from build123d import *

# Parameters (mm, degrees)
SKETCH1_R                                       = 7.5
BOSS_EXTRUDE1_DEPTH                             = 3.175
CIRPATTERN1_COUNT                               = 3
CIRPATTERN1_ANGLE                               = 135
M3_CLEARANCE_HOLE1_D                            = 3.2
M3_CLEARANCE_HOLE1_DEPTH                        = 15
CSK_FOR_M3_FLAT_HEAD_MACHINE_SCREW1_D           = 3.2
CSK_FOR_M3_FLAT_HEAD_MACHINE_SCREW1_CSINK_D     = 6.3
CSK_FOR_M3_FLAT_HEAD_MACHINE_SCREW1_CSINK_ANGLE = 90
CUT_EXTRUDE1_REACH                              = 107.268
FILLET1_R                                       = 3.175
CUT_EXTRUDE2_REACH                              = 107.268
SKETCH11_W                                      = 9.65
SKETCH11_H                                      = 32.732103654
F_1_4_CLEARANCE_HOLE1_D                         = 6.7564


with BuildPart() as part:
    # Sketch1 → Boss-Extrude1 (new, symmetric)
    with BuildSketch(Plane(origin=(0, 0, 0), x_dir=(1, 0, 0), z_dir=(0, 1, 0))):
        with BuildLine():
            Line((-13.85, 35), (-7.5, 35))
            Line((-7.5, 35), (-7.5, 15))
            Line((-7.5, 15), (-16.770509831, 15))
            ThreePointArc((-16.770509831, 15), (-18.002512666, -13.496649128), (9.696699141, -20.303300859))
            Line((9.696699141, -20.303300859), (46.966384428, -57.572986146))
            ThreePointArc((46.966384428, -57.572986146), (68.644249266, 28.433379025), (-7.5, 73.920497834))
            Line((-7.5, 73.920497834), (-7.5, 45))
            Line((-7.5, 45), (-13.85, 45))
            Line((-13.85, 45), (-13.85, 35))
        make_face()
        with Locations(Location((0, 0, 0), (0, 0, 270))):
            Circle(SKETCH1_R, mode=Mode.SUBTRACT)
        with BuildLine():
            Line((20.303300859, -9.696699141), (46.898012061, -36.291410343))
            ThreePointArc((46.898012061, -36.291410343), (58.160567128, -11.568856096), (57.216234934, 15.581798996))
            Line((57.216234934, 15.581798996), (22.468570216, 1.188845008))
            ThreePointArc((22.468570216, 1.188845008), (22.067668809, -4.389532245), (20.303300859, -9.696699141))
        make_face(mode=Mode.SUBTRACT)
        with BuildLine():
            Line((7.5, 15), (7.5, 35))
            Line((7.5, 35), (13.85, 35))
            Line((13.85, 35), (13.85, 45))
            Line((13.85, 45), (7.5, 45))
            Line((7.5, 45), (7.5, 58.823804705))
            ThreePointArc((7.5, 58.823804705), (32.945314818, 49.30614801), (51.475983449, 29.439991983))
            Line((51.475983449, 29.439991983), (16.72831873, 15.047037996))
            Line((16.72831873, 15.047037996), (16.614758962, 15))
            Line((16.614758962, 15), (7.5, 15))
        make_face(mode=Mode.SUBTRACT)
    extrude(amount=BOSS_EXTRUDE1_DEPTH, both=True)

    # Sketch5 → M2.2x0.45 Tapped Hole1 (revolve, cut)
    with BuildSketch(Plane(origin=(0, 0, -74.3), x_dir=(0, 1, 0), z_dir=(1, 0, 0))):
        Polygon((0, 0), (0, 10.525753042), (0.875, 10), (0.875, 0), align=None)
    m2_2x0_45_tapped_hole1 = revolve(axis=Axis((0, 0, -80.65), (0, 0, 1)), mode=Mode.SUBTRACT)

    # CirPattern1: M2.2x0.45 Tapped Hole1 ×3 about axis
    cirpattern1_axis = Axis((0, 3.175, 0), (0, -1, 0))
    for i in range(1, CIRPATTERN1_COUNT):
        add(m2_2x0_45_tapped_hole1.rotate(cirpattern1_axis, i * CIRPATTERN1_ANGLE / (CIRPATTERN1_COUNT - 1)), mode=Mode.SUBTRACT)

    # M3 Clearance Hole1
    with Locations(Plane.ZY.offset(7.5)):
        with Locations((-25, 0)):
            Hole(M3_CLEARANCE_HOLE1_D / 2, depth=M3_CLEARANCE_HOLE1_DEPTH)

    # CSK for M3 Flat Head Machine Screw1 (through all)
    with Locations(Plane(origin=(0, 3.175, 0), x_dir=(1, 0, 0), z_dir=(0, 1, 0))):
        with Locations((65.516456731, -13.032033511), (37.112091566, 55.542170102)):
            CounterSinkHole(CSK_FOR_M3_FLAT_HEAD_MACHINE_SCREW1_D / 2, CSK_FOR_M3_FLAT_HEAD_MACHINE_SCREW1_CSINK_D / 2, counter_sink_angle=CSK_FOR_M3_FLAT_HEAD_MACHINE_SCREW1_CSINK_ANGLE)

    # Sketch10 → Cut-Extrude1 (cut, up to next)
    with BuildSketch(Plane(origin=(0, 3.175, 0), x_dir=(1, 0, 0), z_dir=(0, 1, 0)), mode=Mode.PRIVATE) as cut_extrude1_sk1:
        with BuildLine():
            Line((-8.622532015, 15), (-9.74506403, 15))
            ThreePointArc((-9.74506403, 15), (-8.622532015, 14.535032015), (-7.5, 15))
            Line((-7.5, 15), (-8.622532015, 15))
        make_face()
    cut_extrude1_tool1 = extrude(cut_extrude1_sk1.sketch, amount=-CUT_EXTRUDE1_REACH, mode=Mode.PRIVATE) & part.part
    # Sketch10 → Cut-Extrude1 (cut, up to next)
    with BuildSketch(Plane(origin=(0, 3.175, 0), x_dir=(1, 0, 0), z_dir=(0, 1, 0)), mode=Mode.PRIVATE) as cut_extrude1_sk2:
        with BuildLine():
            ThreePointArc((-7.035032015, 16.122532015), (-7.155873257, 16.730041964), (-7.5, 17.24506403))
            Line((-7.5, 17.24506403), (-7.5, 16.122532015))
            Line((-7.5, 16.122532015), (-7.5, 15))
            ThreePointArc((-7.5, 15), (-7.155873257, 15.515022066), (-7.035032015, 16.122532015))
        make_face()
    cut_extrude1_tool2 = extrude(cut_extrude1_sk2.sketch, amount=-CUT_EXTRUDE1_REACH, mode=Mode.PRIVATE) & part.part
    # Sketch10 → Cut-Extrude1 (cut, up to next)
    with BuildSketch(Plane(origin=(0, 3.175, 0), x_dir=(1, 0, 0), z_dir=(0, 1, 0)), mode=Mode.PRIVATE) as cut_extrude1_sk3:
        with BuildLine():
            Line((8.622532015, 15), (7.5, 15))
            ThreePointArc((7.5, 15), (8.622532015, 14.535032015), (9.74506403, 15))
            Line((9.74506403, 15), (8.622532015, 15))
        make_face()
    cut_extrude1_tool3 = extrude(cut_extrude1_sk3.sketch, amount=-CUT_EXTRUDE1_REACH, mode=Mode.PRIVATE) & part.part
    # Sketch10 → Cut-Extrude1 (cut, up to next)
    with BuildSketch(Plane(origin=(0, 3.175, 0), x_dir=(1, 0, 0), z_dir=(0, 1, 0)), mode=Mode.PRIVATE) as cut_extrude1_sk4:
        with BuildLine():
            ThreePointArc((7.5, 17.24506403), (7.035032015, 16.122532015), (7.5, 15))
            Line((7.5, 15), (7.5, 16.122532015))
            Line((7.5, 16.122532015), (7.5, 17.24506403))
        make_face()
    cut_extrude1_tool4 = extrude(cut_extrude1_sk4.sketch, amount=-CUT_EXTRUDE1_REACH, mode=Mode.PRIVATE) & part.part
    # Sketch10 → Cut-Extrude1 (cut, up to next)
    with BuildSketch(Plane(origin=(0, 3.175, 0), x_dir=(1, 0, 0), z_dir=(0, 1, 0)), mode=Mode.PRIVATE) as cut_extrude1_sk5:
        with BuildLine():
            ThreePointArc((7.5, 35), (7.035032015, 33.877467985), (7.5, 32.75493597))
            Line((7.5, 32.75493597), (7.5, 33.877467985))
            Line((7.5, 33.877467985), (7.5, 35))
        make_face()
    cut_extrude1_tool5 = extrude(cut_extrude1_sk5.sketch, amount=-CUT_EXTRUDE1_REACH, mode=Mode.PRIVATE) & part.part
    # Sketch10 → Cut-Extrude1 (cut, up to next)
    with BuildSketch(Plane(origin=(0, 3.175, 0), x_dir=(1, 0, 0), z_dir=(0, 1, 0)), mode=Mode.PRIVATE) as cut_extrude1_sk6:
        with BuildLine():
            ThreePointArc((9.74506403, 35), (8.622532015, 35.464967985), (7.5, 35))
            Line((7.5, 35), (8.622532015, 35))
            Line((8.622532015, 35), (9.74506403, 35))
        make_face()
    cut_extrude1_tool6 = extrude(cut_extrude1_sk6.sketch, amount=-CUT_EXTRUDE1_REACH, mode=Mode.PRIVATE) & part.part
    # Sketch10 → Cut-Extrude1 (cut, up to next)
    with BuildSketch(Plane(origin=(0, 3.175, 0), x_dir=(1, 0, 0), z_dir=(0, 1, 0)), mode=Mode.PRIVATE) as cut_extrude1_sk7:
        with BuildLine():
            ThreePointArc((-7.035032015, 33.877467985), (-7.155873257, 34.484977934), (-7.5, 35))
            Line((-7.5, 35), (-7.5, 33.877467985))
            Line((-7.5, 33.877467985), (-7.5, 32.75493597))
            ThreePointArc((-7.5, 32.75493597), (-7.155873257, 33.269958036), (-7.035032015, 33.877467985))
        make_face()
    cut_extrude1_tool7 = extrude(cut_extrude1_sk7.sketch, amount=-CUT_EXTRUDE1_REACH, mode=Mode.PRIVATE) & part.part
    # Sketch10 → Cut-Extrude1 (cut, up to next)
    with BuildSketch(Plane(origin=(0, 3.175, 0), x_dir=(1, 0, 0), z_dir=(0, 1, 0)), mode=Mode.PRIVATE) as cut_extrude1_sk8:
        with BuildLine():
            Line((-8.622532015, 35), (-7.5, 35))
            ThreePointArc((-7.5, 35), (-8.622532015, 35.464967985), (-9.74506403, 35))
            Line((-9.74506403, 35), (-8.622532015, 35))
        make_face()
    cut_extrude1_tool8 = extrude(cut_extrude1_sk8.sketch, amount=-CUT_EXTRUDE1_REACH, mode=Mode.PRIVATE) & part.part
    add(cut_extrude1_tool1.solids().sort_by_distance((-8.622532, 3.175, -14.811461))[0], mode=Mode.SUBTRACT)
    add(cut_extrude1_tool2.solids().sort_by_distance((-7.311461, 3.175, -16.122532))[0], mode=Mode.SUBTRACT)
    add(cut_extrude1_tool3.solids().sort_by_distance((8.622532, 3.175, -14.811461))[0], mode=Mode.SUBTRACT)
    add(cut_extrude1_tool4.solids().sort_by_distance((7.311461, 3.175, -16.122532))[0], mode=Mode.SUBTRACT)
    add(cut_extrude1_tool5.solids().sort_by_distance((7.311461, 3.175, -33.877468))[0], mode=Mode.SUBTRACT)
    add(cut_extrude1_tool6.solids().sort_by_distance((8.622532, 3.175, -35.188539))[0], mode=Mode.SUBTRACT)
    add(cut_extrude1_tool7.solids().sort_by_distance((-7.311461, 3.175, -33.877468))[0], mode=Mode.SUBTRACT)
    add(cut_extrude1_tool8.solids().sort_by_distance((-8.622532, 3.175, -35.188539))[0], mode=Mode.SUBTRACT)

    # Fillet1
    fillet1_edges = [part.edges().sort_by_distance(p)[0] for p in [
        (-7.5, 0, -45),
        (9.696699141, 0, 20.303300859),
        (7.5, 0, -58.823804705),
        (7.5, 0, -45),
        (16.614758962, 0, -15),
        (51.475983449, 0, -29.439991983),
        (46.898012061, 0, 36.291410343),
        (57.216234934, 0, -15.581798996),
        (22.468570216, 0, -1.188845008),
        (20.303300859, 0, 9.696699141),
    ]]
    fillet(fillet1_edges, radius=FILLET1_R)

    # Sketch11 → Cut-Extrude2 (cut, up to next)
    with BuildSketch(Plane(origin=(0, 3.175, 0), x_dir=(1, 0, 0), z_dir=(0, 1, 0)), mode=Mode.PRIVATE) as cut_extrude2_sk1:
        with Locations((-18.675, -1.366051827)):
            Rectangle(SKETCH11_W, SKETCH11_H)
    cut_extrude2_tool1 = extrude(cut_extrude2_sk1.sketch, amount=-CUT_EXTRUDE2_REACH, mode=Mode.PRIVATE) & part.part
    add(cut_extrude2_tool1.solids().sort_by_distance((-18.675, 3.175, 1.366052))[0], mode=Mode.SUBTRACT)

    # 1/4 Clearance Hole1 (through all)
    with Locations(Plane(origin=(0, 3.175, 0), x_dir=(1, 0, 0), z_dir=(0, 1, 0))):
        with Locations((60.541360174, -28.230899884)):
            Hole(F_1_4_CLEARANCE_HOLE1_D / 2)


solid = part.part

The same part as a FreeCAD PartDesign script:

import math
import FreeCAD as App
import Part
import Sketcher
from FreeCAD import Vector
Q = App.Units.Quantity


def edges_at(feature, points):
    """Names of the edges that pass closest to the given points."""
    edges = feature.Shape.Edges
    near = lambda p: min(range(len(edges)), key=lambda i: edges[i].distToShape(Part.Vertex(*p))[0])
    return sorted({f"Edge{near(p) + 1}" for p in points})

doc = App.newDocument("Part")
body = doc.addObject("PartDesign::Body", "Body")

sketch1 = body.newObject("Sketcher::SketchObject", "Sketch")
sketch1.AttachmentSupport = (doc.getObject("XZ_Plane"), [""])
sketch1.MapMode = "FlatFace"
sketch1.addGeometry([
    Part.LineSegment(Vector(-13.85, -35, 0), Vector(-7.5, -35, 0)),
    Part.LineSegment(Vector(-7.5, -35, 0), Vector(-7.5, -15, 0)),
    Part.LineSegment(Vector(-7.5, -15, 0), Vector(-16.77, -15, 0)),
    Part.ArcOfCircle(Part.Circle(Vector(0, 0, 0), Vector(0, 0, 1), 22.5), math.radians(64), math.radians(222)),
    Part.LineSegment(Vector(9.7, 20.3, 0), Vector(46.97, 57.57, 0)),
    Part.ArcOfCircle(Part.Circle(Vector(0, 0, 0), Vector(0, 0, 1), 74.3), math.radians(-96), math.radians(51)),
    Part.LineSegment(Vector(-7.5, -73.92, 0), Vector(-7.5, -45, 0)),
    Part.LineSegment(Vector(-7.5, -45, 0), Vector(-13.85, -45, 0)),
    Part.LineSegment(Vector(-13.85, -45, 0), Vector(-13.85, -35, 0)),
    Part.Circle(Vector(0, 0, 0), Vector(0, 0, 1), 7.5),
    Part.LineSegment(Vector(46.9, 36.29, 0), Vector(20.3, 9.7, 0)),
    Part.ArcOfCircle(Part.Circle(Vector(0, 0, 0), Vector(0, 0, 1), 22.5), math.radians(-3), math.radians(26)),
    Part.LineSegment(Vector(22.47, -1.19, 0), Vector(57.22, -15.58, 0)),
    Part.ArcOfCircle(Part.Circle(Vector(0, 0, 0), Vector(0, 0, 1), 59.3), math.radians(-15), math.radians(38)),
    Part.LineSegment(Vector(16.61, -15, 0), Vector(7.5, -15, 0)),
    Part.LineSegment(Vector(7.5, -15, 0), Vector(7.5, -35, 0)),
    Part.LineSegment(Vector(7.5, -35, 0), Vector(13.85, -35, 0)),
    Part.LineSegment(Vector(13.85, -35, 0), Vector(13.85, -45, 0)),
    Part.LineSegment(Vector(13.85, -45, 0), Vector(7.5, -45, 0)),
    Part.LineSegment(Vector(7.5, -45, 0), Vector(7.5, -58.82, 0)),
    Part.ArcOfCircle(Part.Circle(Vector(0, 0, 0), Vector(0, 0, 1), 59.3), math.radians(-83), math.radians(-30)),
    Part.LineSegment(Vector(51.48, -29.44, 0), Vector(16.73, -15.05, 0)),
    Part.LineSegment(Vector(16.73, -15.05, 0), Vector(16.61, -15, 0)),
], False)
sketch1.addConstraint([
    Sketcher.Constraint("Coincident", 0, 2, 1, 1),
    Sketcher.Constraint("Coincident", 1, 2, 2, 1),
    Sketcher.Constraint("Coincident", 2, 2, 3, 2),
    Sketcher.Constraint("Coincident", 3, 1, 4, 1),
    Sketcher.Constraint("Coincident", 4, 2, 5, 2),
    Sketcher.Constraint("Coincident", 5, 1, 6, 1),
    Sketcher.Constraint("Coincident", 6, 2, 7, 1),
    Sketcher.Constraint("Coincident", 7, 2, 8, 1),
    Sketcher.Constraint("Coincident", 8, 2, 0, 1),
    Sketcher.Constraint("Coincident", 10, 2, 11, 2),
    Sketcher.Constraint("Coincident", 11, 1, 12, 1),
    Sketcher.Constraint("Coincident", 12, 2, 13, 1),
    Sketcher.Constraint("Coincident", 13, 2, 10, 1),
    Sketcher.Constraint("Coincident", 14, 2, 15, 1),
    Sketcher.Constraint("Coincident", 15, 2, 16, 1),
    Sketcher.Constraint("Coincident", 16, 2, 17, 1),
    Sketcher.Constraint("Coincident", 17, 2, 18, 1),
    Sketcher.Constraint("Coincident", 18, 2, 19, 1),
    Sketcher.Constraint("Coincident", 19, 2, 20, 1),
    Sketcher.Constraint("Coincident", 20, 2, 21, 1),
    Sketcher.Constraint("Coincident", 21, 2, 22, 1),
    Sketcher.Constraint("Coincident", 22, 2, 14, 1),
    Sketcher.Constraint("Horizontal", 0),
    Sketcher.Constraint("Vertical", 1),
    Sketcher.Constraint("Horizontal", 2),
    Sketcher.Constraint("Vertical", 6),
    Sketcher.Constraint("Horizontal", 7),
    Sketcher.Constraint("Vertical", 8),
    Sketcher.Constraint("Horizontal", 14),
    Sketcher.Constraint("Vertical", 15),
    Sketcher.Constraint("Horizontal", 16),
    Sketcher.Constraint("Vertical", 17),
    Sketcher.Constraint("Horizontal", 18),
    Sketcher.Constraint("Vertical", 19),
    Sketcher.Constraint("Coincident", 3, 3, -1, 1),
    Sketcher.Constraint("Coincident", 5, 3, -1, 1),
    Sketcher.Constraint("Coincident", 9, 3, -1, 1),
    Sketcher.Constraint("Coincident", 11, 3, -1, 1),
    Sketcher.Constraint("Coincident", 13, 3, -1, 1),
    Sketcher.Constraint("Coincident", 20, 3, -1, 1),
    Sketcher.Constraint("Equal", 3, 11),
    Sketcher.Constraint("Equal", 13, 20),
    Sketcher.Constraint("Symmetric", 1, 2, 14, 2, -2),
    Sketcher.Constraint("Symmetric", 8, 2, 16, 2, -2),
    Sketcher.Constraint("Symmetric", 6, 2, 18, 2, -2),
    Sketcher.Constraint("Parallel", 4, 10),
    Sketcher.Constraint("Parallel", 12, 21),
    Sketcher.Constraint("Parallel", 21, 22),
    Sketcher.Constraint("Vertical", 1, 2, 5, 1),
    Sketcher.Constraint("Equal", 10, 12),
    Sketcher.Constraint("Equal", 12, 21),
    Sketcher.Constraint("Diameter", 9, Q("15 mm")),
    Sketcher.Constraint("Radius", 3, Q("22.5 mm")),
    Sketcher.Constraint("Radius", 5, Q("74.3 mm")),
    Sketcher.Constraint("Radius", 13, Q("59.3 mm")),
    Sketcher.Constraint("DistanceY", 1, 1, 1, 2, Q("20 mm")),
    Sketcher.Constraint("DistanceY", 8, 1, 8, 2, Q("10 mm")),
    Sketcher.Constraint("Angle", 4, Q("45 deg")),
    Sketcher.Constraint("DistanceY", 0, 2, -1, 1, Q("35 mm")),
    Sketcher.Constraint("Angle", 12, Q("-22.5 deg")),
    Sketcher.Constraint("DistanceX", 1, 2, 14, 2, Q("15 mm")),
    Sketcher.Constraint("DistanceX", 0, 1, 0, 2, Q("6.35 mm")),
    Sketcher.Constraint("Distance", 10, Q("37.610601 mm")),
    Sketcher.Constraint("DistanceX", 14, 2, 14, 1, Q("9.114759 mm")),
    Sketcher.Constraint("DistanceX", -1, 1, 3, 1, Q("9.696699 mm")),
])
pad1 = body.newObject("PartDesign::Pad", "Pad")
pad1.Profile = sketch1
pad1.Length = 6.35
pad1.Midplane = True

sketch2 = body.newObject("Sketcher::SketchObject", "Sketch001")
sketch2.AttachmentSupport = (doc.getObject("YZ_Plane"), [""])
sketch2.MapMode = "FlatFace"
sketch2.addGeometry([
    Part.LineSegment(Vector(0, -63.8, 0), Vector(0, -74.3, 0)),
    Part.LineSegment(Vector(0, -74.3, 0), Vector(0.9, -74.3, 0)),
    Part.LineSegment(Vector(0.9, -74.3, 0), Vector(0.9, -64.3, 0)),
    Part.LineSegment(Vector(0.9, -64.3, 0), Vector(0, -63.8, 0)),
], False)
sketch2.addConstraint([
    Sketcher.Constraint("Coincident", 0, 2, 1, 1),
    Sketcher.Constraint("Coincident", 1, 2, 2, 1),
    Sketcher.Constraint("Coincident", 2, 2, 3, 1),
    Sketcher.Constraint("Coincident", 3, 2, 0, 1),
    Sketcher.Constraint("Vertical", 0),
    Sketcher.Constraint("Horizontal", 1),
    Sketcher.Constraint("Vertical", 2),
    Sketcher.Constraint("PointOnObject", 0, 2, -2),
    Sketcher.Constraint("DistanceY", 2, 1, 2, 2, Q("10 mm")),
    Sketcher.Constraint("Angle", 3, Q("149 deg")),
    Sketcher.Constraint("DistanceY", 0, 2, -1, 1, Q("74.3 mm")),
    Sketcher.Constraint("DistanceX", 1, 1, 1, 2, Q("0.875 mm")),
])
groove = body.newObject("PartDesign::Groove", "Groove")
groove.Profile = sketch2
groove.ReferenceAxis = (sketch2, ["V_Axis"])
groove.Angle = 360
doc.recompute()

polarpattern = body.newObject("PartDesign::PolarPattern", "PolarPattern")
polarpattern.Originals = [groove]
polarpattern.Axis = (doc.getObject("Y_Axis"), [""])
polarpattern.Angle = 135
polarpattern.Occurrences = 3
polarpattern.Reversed = True
body.Tip = polarpattern

sketch3 = body.newObject("Sketcher::SketchObject", "Sketch002")
sketch3.AttachmentSupport = (doc.getObject("YZ_Plane"), [""])
sketch3.MapMode = "FlatFace"
sketch3.AttachmentOffset = App.Placement(Vector(0, 0, -7.5), App.Rotation())
sketch3.addGeometry(Part.Circle(Vector(0, -25, 0), Vector(0, 0, 1), 1.6), False)
sketch3.addConstraint([
    Sketcher.Constraint("PointOnObject", 0, 3, -2),
    Sketcher.Constraint("Diameter", 0, Q("3.2 mm")),
    Sketcher.Constraint("DistanceY", 0, 3, -1, 1, Q("25 mm")),
])
doc.recompute()
hole = body.newObject("PartDesign::Hole", "Hole")
hole.Profile = sketch3
hole.ThreadType = "None"
hole.Diameter = 3.2
hole.DepthType = "Dimension"
hole.Depth = 15
hole.DrillPoint = "Flat"
hole.Reversed = True

sketch4 = body.newObject("Sketcher::SketchObject", "Sketch003")
sketch4.AttachmentSupport = (doc.getObject("XZ_Plane"), [""])
sketch4.MapMode = "FlatFace"
sketch4.AttachmentOffset = App.Placement(Vector(0, 0, -3.175), App.Rotation())
sketch4.addGeometry([
    Part.Circle(Vector(65.5, 13, 0), Vector(0, 0, 1), 1.6),
    Part.Circle(Vector(37.1, -55.5, 0), Vector(0, 0, 1), 1.6),
], False)
sketch4.addConstraint([
    Sketcher.Constraint("Equal", 0, 1),
    Sketcher.Constraint("Diameter", 0, Q("3.2 mm")),
    Sketcher.Constraint("DistanceX", -1, 1, 1, 3, Q("37.112092 mm")),
    Sketcher.Constraint("DistanceY", 1, 3, -1, 1, Q("55.54217 mm")),
    Sketcher.Constraint("DistanceX", -1, 1, 0, 3, Q("65.516457 mm")),
    Sketcher.Constraint("DistanceY", -1, 1, 0, 3, Q("13.032034 mm")),
])
doc.recompute()
hole2 = body.newObject("PartDesign::Hole", "Hole001")
hole2.Profile = sketch4
hole2.ThreadType = "None"
hole2.Diameter = 3.2
hole2.DepthType = "ThroughAll"
hole2.HoleCutType = "Countersink"
hole2.HoleCutDiameter = 6.3
hole2.HoleCutCountersinkAngle = 90
hole2.Reversed = True

sketch5 = body.newObject("Sketcher::SketchObject", "Sketch004")
sketch5.AttachmentSupport = (doc.getObject("XZ_Plane"), [""])
sketch5.MapMode = "FlatFace"
sketch5.AttachmentOffset = App.Placement(Vector(0, 0, -3.175), App.Rotation())
sketch5.addGeometry([
    Part.ArcOfCircle(Part.Circle(Vector(-8.6, -16.1, 0), Vector(0, 0, 1), 1.6), math.radians(45), math.radians(135)),
    Part.LineSegment(Vector(-7.5, -15, 0), Vector(-9.7, -15, 0)),
], False)
sketch5.addConstraint([
    Sketcher.Constraint("Coincident", 0, 1, 1, 1),
    Sketcher.Constraint("Coincident", 1, 2, 0, 2),
    Sketcher.Constraint("Horizontal", 1),
    Sketcher.Constraint("DistanceY", 0, 1, -1, 1, Q("15 mm")),
    Sketcher.Constraint("DistanceX", 0, 1, -1, 1, Q("7.5 mm")),
    Sketcher.Constraint("Radius", 0, Q("1.5875 mm")),
    Sketcher.Constraint("DistanceX", 1, 2, 1, 1, Q("2.245064 mm")),
])
pocket1 = body.newObject("PartDesign::Pocket", "Pocket")
pocket1.Profile = sketch5
pocket1.Type = "UpToFirst"
pocket1.Reversed = True

sketch6 = body.newObject("Sketcher::SketchObject", "Sketch005")
sketch6.AttachmentSupport = (doc.getObject("XZ_Plane"), [""])
sketch6.MapMode = "FlatFace"
sketch6.AttachmentOffset = App.Placement(Vector(0, 0, -3.175), App.Rotation())
sketch6.addGeometry([
    Part.ArcOfCircle(Part.Circle(Vector(-8.6, -16.1, 0), Vector(0, 0, 1), 1.6), math.radians(-45), math.radians(0)),
    Part.LineSegment(Vector(-7.5, -17.2, 0), Vector(-7.5, -15, 0)),
    Part.ArcOfCircle(Part.Circle(Vector(-8.6, -16.1, 0), Vector(0, 0, 1), 1.6), math.radians(0), math.radians(45)),
], False)
sketch6.addConstraint([
    Sketcher.Constraint("Coincident", 0, 1, 1, 1),
    Sketcher.Constraint("Coincident", 1, 2, 2, 2),
    Sketcher.Constraint("Tangent", 2, 1, 0, 2),
    Sketcher.Constraint("Vertical", 1),
    Sketcher.Constraint("Equal", 0, 2),
    Sketcher.Constraint("Horizontal", 0, 3, 2, 1),
    Sketcher.Constraint("DistanceY", 1, 2, -1, 1, Q("15 mm")),
    Sketcher.Constraint("DistanceX", 0, 1, -1, 1, Q("7.5 mm")),
    Sketcher.Constraint("Radius", 0, Q("1.5875 mm")),
    Sketcher.Constraint("DistanceY", 1, 1, 1, 2, Q("2.245064 mm")),
])
pocket2 = body.newObject("PartDesign::Pocket", "Pocket001")
pocket2.Profile = sketch6
pocket2.Type = "UpToFirst"
pocket2.Reversed = True

sketch7 = body.newObject("Sketcher::SketchObject", "Sketch006")
sketch7.AttachmentSupport = (doc.getObject("XZ_Plane"), [""])
sketch7.MapMode = "FlatFace"
sketch7.AttachmentOffset = App.Placement(Vector(0, 0, -3.175), App.Rotation())
sketch7.addGeometry([
    Part.ArcOfCircle(Part.Circle(Vector(8.6, -16.1, 0), Vector(0, 0, 1), 1.6), math.radians(45), math.radians(135)),
    Part.LineSegment(Vector(9.7, -15, 0), Vector(7.5, -15, 0)),
], False)
sketch7.addConstraint([
    Sketcher.Constraint("Coincident", 0, 1, 1, 1),
    Sketcher.Constraint("Coincident", 1, 2, 0, 2),
    Sketcher.Constraint("Horizontal", 1),
    Sketcher.Constraint("DistanceY", 0, 1, -1, 1, Q("15 mm")),
    Sketcher.Constraint("DistanceX", -1, 1, 1, 2, Q("7.5 mm")),
    Sketcher.Constraint("Radius", 0, Q("1.5875 mm")),
    Sketcher.Constraint("DistanceX", 1, 2, 1, 1, Q("2.245064 mm")),
])
pocket3 = body.newObject("PartDesign::Pocket", "Pocket002")
pocket3.Profile = sketch7
pocket3.Type = "UpToFirst"
pocket3.Reversed = True

sketch8 = body.newObject("Sketcher::SketchObject", "Sketch007")
sketch8.AttachmentSupport = (doc.getObject("XZ_Plane"), [""])
sketch8.MapMode = "FlatFace"
sketch8.AttachmentOffset = App.Placement(Vector(0, 0, -3.175), App.Rotation())
sketch8.addGeometry([
    Part.ArcOfCircle(Part.Circle(Vector(8.6, -16.1, 0), Vector(0, 0, 1), 1.6), math.radians(135), math.radians(225)),
    Part.LineSegment(Vector(7.5, -15, 0), Vector(7.5, -17.2, 0)),
], False)
sketch8.addConstraint([
    Sketcher.Constraint("Coincident", 0, 1, 1, 1),
    Sketcher.Constraint("Coincident", 1, 2, 0, 2),
    Sketcher.Constraint("Vertical", 1),
    Sketcher.Constraint("DistanceY", 0, 1, -1, 1, Q("15 mm")),
    Sketcher.Constraint("DistanceX", -1, 1, 0, 1, Q("7.5 mm")),
    Sketcher.Constraint("Radius", 0, Q("1.5875 mm")),
    Sketcher.Constraint("DistanceY", 1, 2, 1, 1, Q("2.245064 mm")),
])
pocket4 = body.newObject("PartDesign::Pocket", "Pocket003")
pocket4.Profile = sketch8
pocket4.Type = "UpToFirst"
pocket4.Reversed = True

sketch9 = body.newObject("Sketcher::SketchObject", "Sketch008")
sketch9.AttachmentSupport = (doc.getObject("XZ_Plane"), [""])
sketch9.MapMode = "FlatFace"
sketch9.AttachmentOffset = App.Placement(Vector(0, 0, -3.175), App.Rotation())
sketch9.addGeometry([
    Part.ArcOfCircle(Part.Circle(Vector(8.6, -33.9, 0), Vector(0, 0, 1), 1.6), math.radians(135), math.radians(225)),
    Part.LineSegment(Vector(7.5, -32.8, 0), Vector(7.5, -35, 0)),
], False)
sketch9.addConstraint([
    Sketcher.Constraint("Coincident", 0, 1, 1, 1),
    Sketcher.Constraint("Coincident", 1, 2, 0, 2),
    Sketcher.Constraint("Vertical", 1),
    Sketcher.Constraint("DistanceY", 1, 2, -1, 1, Q("35 mm")),
    Sketcher.Constraint("DistanceX", -1, 1, 0, 1, Q("7.5 mm")),
    Sketcher.Constraint("Radius", 0, Q("1.5875 mm")),
    Sketcher.Constraint("DistanceY", 1, 2, 1, 1, Q("2.245064 mm")),
])
pocket5 = body.newObject("PartDesign::Pocket", "Pocket004")
pocket5.Profile = sketch9
pocket5.Type = "UpToFirst"
pocket5.Reversed = True

sketch10 = body.newObject("Sketcher::SketchObject", "Sketch009")
sketch10.AttachmentSupport = (doc.getObject("XZ_Plane"), [""])
sketch10.MapMode = "FlatFace"
sketch10.AttachmentOffset = App.Placement(Vector(0, 0, -3.175), App.Rotation())
sketch10.addGeometry([
    Part.ArcOfCircle(Part.Circle(Vector(8.6, -33.9, 0), Vector(0, 0, 1), 1.6), math.radians(-135), math.radians(-45)),
    Part.LineSegment(Vector(7.5, -35, 0), Vector(9.7, -35, 0)),
], False)
sketch10.addConstraint([
    Sketcher.Constraint("Coincident", 0, 1, 1, 1),
    Sketcher.Constraint("Coincident", 1, 2, 0, 2),
    Sketcher.Constraint("Horizontal", 1),
    Sketcher.Constraint("DistanceY", 0, 1, -1, 1, Q("35 mm")),
    Sketcher.Constraint("DistanceX", -1, 1, 0, 1, Q("7.5 mm")),
    Sketcher.Constraint("Radius", 0, Q("1.5875 mm")),
    Sketcher.Constraint("DistanceX", 1, 1, 1, 2, Q("2.245064 mm")),
])
pocket6 = body.newObject("PartDesign::Pocket", "Pocket005")
pocket6.Profile = sketch10
pocket6.Type = "UpToFirst"
pocket6.Reversed = True

sketch11 = body.newObject("Sketcher::SketchObject", "Sketch010")
sketch11.AttachmentSupport = (doc.getObject("XZ_Plane"), [""])
sketch11.MapMode = "FlatFace"
sketch11.AttachmentOffset = App.Placement(Vector(0, 0, -3.175), App.Rotation())
sketch11.addGeometry([
    Part.ArcOfCircle(Part.Circle(Vector(-8.6, -33.9, 0), Vector(0, 0, 1), 1.6), math.radians(-45), math.radians(0)),
    Part.LineSegment(Vector(-7.5, -35, 0), Vector(-7.5, -32.8, 0)),
    Part.ArcOfCircle(Part.Circle(Vector(-8.6, -33.9, 0), Vector(0, 0, 1), 1.6), math.radians(0), math.radians(45)),
], False)
sketch11.addConstraint([
    Sketcher.Constraint("Coincident", 0, 1, 1, 1),
    Sketcher.Constraint("Coincident", 1, 2, 2, 2),
    Sketcher.Constraint("Tangent", 2, 1, 0, 2),
    Sketcher.Constraint("Vertical", 1),
    Sketcher.Constraint("Equal", 0, 2),
    Sketcher.Constraint("Horizontal", 0, 3, 2, 1),
    Sketcher.Constraint("DistanceY", 0, 1, -1, 1, Q("35 mm")),
    Sketcher.Constraint("DistanceX", 0, 1, -1, 1, Q("7.5 mm")),
    Sketcher.Constraint("Radius", 0, Q("1.5875 mm")),
    Sketcher.Constraint("DistanceY", 1, 1, 1, 2, Q("2.245064 mm")),
])
pocket7 = body.newObject("PartDesign::Pocket", "Pocket006")
pocket7.Profile = sketch11
pocket7.Type = "UpToFirst"
pocket7.Reversed = True

sketch12 = body.newObject("Sketcher::SketchObject", "Sketch011")
sketch12.AttachmentSupport = (doc.getObject("XZ_Plane"), [""])
sketch12.MapMode = "FlatFace"
sketch12.AttachmentOffset = App.Placement(Vector(0, 0, -3.175), App.Rotation())
sketch12.addGeometry([
    Part.ArcOfCircle(Part.Circle(Vector(-8.6, -33.9, 0), Vector(0, 0, 1), 1.6), math.radians(-135), math.radians(-45)),
    Part.LineSegment(Vector(-9.7, -35, 0), Vector(-7.5, -35, 0)),
], False)
sketch12.addConstraint([
    Sketcher.Constraint("Coincident", 0, 1, 1, 1),
    Sketcher.Constraint("Coincident", 1, 2, 0, 2),
    Sketcher.Constraint("Horizontal", 1),
    Sketcher.Constraint("DistanceY", 0, 1, -1, 1, Q("35 mm")),
    Sketcher.Constraint("DistanceX", 1, 2, -1, 1, Q("7.5 mm")),
    Sketcher.Constraint("Radius", 0, Q("1.5875 mm")),
    Sketcher.Constraint("DistanceX", 1, 1, 1, 2, Q("2.245064 mm")),
])
pocket8 = body.newObject("PartDesign::Pocket", "Pocket007")
pocket8.Profile = sketch12
pocket8.Type = "UpToFirst"
pocket8.Reversed = True
doc.recompute()

fillet = body.newObject("PartDesign::Fillet", "Fillet")
fillet.Base = (pocket8, edges_at(pocket8, [
    (-7.5, 0, -45),
    (9.697, 0, 20.303),
    (7.5, 0, -58.824),
    (7.5, 0, -45),
    (16.615, 0, -15),
    (51.476, 0, -29.44),
    (46.898, 0, 36.291),
    (57.216, 0, -15.582),
    (22.469, 0, -1.189),
    (20.303, 0, 9.697),
]))
fillet.Radius = 3.175

sketch13 = body.newObject("Sketcher::SketchObject", "Sketch012")
sketch13.AttachmentSupport = (doc.getObject("XZ_Plane"), [""])
sketch13.MapMode = "FlatFace"
sketch13.AttachmentOffset = App.Placement(Vector(0, 0, -3.175), App.Rotation())
sketch13.addGeometry([
    Part.LineSegment(Vector(-24, -15, 0), Vector(-24, 18, 0)),
    Part.LineSegment(Vector(-24, 18, 0), Vector(-14, 18, 0)),
    Part.LineSegment(Vector(-14, 18, 0), Vector(-14, -15, 0)),
    Part.LineSegment(Vector(-14, -15, 0), Vector(-24, -15, 0)),
], False)
sketch13.addConstraint([
    Sketcher.Constraint("Coincident", 0, 2, 1, 1),
    Sketcher.Constraint("Coincident", 1, 2, 2, 1),
    Sketcher.Constraint("Coincident", 2, 2, 3, 1),
    Sketcher.Constraint("Coincident", 3, 2, 0, 1),
    Sketcher.Constraint("Vertical", 0),
    Sketcher.Constraint("Horizontal", 1),
    Sketcher.Constraint("Vertical", 2),
    Sketcher.Constraint("Horizontal", 3),
    Sketcher.Constraint("DistanceY", 2, 2, -1, 1, Q("15 mm")),
    Sketcher.Constraint("DistanceX", 1, 1, 1, 2, Q("9.65 mm")),
    Sketcher.Constraint("DistanceX", 0, 2, -1, 1, Q("23.5 mm")),
    Sketcher.Constraint("DistanceY", 0, 1, 0, 2, Q("32.732104 mm")),
])
pocket9 = body.newObject("PartDesign::Pocket", "Pocket008")
pocket9.Profile = sketch13
pocket9.Type = "UpToFirst"
pocket9.Reversed = True

sketch14 = body.newObject("Sketcher::SketchObject", "Sketch013")
sketch14.AttachmentSupport = (doc.getObject("XZ_Plane"), [""])
sketch14.MapMode = "FlatFace"
sketch14.AttachmentOffset = App.Placement(Vector(0, 0, -3.175), App.Rotation())
sketch14.addGeometry(Part.Circle(Vector(60.5, 28.2, 0), Vector(0, 0, 1), 3.4), False)
sketch14.addConstraint([
    Sketcher.Constraint("Diameter", 0, Q("6.7564 mm")),
    Sketcher.Constraint("DistanceY", -1, 1, 0, 3, Q("28.2309 mm")),
    Sketcher.Constraint("DistanceX", -1, 1, 0, 3, Q("60.54136 mm")),
])
doc.recompute()
hole3 = body.newObject("PartDesign::Hole", "Hole002")
hole3.Profile = sketch14
hole3.ThreadType = "None"
hole3.Diameter = 6.7564
hole3.DepthType = "ThroughAll"
hole3.Reversed = True

doc.recompute()
